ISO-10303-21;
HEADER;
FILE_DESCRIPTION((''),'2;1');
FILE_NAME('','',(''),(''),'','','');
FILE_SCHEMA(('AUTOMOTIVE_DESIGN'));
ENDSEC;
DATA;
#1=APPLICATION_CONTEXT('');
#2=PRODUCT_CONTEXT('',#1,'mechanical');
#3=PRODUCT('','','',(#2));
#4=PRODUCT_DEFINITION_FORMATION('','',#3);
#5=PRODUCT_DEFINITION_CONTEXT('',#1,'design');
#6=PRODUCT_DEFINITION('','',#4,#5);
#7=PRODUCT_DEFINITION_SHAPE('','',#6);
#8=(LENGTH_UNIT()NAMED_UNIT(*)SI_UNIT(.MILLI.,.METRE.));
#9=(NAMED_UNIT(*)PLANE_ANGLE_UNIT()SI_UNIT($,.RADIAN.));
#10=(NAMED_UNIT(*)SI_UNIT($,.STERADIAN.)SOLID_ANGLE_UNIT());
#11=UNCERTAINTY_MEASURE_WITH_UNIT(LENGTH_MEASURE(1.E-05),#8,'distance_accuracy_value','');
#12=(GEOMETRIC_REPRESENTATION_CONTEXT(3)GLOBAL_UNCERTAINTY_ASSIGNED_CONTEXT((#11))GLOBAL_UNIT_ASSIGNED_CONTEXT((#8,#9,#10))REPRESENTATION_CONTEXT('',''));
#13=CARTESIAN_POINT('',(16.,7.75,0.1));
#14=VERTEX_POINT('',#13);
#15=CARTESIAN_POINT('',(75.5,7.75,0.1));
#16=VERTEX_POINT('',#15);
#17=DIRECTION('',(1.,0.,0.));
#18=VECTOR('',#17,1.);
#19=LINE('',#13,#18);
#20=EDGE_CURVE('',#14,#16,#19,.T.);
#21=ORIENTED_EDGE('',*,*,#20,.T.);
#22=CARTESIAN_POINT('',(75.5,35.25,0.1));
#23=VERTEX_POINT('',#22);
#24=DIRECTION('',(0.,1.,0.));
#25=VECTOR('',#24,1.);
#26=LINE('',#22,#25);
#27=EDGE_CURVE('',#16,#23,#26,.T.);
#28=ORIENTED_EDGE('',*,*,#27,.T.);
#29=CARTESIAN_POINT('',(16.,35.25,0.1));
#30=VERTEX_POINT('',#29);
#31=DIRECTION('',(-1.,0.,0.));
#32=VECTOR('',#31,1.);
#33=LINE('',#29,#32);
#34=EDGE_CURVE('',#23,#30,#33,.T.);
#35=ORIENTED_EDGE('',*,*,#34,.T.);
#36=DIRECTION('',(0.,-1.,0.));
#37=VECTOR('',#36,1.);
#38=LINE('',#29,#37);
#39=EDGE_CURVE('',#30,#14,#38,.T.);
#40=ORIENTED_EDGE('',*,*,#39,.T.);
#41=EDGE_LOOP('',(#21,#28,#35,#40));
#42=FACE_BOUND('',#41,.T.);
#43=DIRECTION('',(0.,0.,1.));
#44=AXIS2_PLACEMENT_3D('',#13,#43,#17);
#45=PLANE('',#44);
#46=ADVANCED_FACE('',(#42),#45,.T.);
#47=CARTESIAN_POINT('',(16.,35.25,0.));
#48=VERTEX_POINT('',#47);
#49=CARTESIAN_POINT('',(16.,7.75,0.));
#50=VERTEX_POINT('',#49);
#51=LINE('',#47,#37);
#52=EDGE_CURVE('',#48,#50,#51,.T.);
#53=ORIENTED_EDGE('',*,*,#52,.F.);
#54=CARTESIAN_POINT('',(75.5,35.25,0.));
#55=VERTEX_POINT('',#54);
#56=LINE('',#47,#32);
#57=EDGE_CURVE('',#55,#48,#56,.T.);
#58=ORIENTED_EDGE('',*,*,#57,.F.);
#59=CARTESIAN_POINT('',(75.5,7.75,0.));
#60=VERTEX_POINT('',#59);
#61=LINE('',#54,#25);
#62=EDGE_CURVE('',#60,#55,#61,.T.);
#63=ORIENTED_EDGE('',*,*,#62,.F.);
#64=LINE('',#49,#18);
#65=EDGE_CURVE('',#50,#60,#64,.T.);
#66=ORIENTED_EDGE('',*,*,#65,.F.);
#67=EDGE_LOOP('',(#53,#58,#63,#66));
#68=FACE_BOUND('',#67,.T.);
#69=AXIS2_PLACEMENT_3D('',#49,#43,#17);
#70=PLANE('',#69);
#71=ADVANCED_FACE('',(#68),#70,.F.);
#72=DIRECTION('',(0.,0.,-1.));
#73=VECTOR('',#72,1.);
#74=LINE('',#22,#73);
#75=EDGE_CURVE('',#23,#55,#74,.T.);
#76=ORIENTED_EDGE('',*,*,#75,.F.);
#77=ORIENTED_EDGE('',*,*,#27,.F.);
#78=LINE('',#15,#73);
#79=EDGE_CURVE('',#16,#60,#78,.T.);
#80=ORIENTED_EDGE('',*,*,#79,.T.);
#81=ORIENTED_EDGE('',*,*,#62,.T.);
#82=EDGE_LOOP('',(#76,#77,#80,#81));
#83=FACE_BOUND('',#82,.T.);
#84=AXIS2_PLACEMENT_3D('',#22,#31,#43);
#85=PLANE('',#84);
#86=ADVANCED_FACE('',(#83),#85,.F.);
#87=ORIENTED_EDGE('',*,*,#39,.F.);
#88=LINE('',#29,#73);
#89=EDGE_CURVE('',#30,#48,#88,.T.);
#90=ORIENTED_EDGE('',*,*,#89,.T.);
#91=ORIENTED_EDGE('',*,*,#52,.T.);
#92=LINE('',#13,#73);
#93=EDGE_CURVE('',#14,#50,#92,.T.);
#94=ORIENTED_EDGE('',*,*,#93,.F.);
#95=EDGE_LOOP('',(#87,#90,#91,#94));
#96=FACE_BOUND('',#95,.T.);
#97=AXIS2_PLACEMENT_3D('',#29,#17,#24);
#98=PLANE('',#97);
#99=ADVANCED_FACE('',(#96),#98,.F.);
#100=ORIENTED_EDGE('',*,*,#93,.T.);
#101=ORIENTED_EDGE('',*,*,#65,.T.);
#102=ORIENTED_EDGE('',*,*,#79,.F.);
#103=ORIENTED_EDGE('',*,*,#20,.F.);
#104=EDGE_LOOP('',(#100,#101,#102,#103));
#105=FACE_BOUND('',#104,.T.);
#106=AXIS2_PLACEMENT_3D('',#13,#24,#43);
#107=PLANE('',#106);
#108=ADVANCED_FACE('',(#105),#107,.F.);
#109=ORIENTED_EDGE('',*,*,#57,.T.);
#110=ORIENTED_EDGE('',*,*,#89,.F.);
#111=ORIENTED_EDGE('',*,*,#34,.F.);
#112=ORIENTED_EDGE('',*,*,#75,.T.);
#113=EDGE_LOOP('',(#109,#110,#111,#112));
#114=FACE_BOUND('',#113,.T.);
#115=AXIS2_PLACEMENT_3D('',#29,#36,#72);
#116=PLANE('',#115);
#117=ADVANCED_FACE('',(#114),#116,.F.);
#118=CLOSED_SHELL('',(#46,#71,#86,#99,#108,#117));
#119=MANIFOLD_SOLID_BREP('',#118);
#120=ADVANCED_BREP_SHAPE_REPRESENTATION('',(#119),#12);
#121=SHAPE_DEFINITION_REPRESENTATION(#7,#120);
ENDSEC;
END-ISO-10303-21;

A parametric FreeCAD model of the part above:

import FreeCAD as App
import Part
import Sketcher


def add_polygon(sketch, points):
    """Adds a closed chain of lines whose ends are joined by coincident constraints."""
    first, n = sketch.GeometryCount, len(points)
    for a, b in zip(points, points[1:] + points[:1]):
        sketch.addGeometry(Part.LineSegment(App.Vector(*a, 0), App.Vector(*b, 0)), False)
    for i in range(n):
        sketch.addConstraint(Sketcher.Constraint("Coincident", first + i, 2, first + (i + 1) % n, 1))

doc = App.newDocument("Part")
body = doc.addObject("PartDesign::Body", "Body")

sketch1 = doc.addObject("Sketcher::SketchObject", "Sketch")
body.addObject(sketch1)
sketch1.AttachmentSupport = (doc.XY_Plane, [""])
sketch1.MapMode = "FlatFace"
add_polygon(sketch1, [(16, 35), (16, 8), (76, 8), (76, 35)])
sketch1.addConstraint([
    Sketcher.Constraint("Vertical", 0),
    Sketcher.Constraint("Horizontal", 1),
    Sketcher.Constraint("Vertical", 2),
    Sketcher.Constraint("Horizontal", 3),
    Sketcher.Constraint("DistanceX", 1, 1, 1, 2, 59.5),
    Sketcher.Constraint("DistanceY", 0, 2, 0, 1, 27.5),
    Sketcher.Constraint("DistanceX", -1, 1, 0, 2, 16.0),
    Sketcher.Constraint("DistanceY", -1, 1, 0, 2, 7.75),
])
pad1 = doc.addObject("PartDesign::Pad", "Pad")
body.addObject(pad1)
pad1.Profile = sketch1
pad1.Length = 0.1

doc.recompute()
